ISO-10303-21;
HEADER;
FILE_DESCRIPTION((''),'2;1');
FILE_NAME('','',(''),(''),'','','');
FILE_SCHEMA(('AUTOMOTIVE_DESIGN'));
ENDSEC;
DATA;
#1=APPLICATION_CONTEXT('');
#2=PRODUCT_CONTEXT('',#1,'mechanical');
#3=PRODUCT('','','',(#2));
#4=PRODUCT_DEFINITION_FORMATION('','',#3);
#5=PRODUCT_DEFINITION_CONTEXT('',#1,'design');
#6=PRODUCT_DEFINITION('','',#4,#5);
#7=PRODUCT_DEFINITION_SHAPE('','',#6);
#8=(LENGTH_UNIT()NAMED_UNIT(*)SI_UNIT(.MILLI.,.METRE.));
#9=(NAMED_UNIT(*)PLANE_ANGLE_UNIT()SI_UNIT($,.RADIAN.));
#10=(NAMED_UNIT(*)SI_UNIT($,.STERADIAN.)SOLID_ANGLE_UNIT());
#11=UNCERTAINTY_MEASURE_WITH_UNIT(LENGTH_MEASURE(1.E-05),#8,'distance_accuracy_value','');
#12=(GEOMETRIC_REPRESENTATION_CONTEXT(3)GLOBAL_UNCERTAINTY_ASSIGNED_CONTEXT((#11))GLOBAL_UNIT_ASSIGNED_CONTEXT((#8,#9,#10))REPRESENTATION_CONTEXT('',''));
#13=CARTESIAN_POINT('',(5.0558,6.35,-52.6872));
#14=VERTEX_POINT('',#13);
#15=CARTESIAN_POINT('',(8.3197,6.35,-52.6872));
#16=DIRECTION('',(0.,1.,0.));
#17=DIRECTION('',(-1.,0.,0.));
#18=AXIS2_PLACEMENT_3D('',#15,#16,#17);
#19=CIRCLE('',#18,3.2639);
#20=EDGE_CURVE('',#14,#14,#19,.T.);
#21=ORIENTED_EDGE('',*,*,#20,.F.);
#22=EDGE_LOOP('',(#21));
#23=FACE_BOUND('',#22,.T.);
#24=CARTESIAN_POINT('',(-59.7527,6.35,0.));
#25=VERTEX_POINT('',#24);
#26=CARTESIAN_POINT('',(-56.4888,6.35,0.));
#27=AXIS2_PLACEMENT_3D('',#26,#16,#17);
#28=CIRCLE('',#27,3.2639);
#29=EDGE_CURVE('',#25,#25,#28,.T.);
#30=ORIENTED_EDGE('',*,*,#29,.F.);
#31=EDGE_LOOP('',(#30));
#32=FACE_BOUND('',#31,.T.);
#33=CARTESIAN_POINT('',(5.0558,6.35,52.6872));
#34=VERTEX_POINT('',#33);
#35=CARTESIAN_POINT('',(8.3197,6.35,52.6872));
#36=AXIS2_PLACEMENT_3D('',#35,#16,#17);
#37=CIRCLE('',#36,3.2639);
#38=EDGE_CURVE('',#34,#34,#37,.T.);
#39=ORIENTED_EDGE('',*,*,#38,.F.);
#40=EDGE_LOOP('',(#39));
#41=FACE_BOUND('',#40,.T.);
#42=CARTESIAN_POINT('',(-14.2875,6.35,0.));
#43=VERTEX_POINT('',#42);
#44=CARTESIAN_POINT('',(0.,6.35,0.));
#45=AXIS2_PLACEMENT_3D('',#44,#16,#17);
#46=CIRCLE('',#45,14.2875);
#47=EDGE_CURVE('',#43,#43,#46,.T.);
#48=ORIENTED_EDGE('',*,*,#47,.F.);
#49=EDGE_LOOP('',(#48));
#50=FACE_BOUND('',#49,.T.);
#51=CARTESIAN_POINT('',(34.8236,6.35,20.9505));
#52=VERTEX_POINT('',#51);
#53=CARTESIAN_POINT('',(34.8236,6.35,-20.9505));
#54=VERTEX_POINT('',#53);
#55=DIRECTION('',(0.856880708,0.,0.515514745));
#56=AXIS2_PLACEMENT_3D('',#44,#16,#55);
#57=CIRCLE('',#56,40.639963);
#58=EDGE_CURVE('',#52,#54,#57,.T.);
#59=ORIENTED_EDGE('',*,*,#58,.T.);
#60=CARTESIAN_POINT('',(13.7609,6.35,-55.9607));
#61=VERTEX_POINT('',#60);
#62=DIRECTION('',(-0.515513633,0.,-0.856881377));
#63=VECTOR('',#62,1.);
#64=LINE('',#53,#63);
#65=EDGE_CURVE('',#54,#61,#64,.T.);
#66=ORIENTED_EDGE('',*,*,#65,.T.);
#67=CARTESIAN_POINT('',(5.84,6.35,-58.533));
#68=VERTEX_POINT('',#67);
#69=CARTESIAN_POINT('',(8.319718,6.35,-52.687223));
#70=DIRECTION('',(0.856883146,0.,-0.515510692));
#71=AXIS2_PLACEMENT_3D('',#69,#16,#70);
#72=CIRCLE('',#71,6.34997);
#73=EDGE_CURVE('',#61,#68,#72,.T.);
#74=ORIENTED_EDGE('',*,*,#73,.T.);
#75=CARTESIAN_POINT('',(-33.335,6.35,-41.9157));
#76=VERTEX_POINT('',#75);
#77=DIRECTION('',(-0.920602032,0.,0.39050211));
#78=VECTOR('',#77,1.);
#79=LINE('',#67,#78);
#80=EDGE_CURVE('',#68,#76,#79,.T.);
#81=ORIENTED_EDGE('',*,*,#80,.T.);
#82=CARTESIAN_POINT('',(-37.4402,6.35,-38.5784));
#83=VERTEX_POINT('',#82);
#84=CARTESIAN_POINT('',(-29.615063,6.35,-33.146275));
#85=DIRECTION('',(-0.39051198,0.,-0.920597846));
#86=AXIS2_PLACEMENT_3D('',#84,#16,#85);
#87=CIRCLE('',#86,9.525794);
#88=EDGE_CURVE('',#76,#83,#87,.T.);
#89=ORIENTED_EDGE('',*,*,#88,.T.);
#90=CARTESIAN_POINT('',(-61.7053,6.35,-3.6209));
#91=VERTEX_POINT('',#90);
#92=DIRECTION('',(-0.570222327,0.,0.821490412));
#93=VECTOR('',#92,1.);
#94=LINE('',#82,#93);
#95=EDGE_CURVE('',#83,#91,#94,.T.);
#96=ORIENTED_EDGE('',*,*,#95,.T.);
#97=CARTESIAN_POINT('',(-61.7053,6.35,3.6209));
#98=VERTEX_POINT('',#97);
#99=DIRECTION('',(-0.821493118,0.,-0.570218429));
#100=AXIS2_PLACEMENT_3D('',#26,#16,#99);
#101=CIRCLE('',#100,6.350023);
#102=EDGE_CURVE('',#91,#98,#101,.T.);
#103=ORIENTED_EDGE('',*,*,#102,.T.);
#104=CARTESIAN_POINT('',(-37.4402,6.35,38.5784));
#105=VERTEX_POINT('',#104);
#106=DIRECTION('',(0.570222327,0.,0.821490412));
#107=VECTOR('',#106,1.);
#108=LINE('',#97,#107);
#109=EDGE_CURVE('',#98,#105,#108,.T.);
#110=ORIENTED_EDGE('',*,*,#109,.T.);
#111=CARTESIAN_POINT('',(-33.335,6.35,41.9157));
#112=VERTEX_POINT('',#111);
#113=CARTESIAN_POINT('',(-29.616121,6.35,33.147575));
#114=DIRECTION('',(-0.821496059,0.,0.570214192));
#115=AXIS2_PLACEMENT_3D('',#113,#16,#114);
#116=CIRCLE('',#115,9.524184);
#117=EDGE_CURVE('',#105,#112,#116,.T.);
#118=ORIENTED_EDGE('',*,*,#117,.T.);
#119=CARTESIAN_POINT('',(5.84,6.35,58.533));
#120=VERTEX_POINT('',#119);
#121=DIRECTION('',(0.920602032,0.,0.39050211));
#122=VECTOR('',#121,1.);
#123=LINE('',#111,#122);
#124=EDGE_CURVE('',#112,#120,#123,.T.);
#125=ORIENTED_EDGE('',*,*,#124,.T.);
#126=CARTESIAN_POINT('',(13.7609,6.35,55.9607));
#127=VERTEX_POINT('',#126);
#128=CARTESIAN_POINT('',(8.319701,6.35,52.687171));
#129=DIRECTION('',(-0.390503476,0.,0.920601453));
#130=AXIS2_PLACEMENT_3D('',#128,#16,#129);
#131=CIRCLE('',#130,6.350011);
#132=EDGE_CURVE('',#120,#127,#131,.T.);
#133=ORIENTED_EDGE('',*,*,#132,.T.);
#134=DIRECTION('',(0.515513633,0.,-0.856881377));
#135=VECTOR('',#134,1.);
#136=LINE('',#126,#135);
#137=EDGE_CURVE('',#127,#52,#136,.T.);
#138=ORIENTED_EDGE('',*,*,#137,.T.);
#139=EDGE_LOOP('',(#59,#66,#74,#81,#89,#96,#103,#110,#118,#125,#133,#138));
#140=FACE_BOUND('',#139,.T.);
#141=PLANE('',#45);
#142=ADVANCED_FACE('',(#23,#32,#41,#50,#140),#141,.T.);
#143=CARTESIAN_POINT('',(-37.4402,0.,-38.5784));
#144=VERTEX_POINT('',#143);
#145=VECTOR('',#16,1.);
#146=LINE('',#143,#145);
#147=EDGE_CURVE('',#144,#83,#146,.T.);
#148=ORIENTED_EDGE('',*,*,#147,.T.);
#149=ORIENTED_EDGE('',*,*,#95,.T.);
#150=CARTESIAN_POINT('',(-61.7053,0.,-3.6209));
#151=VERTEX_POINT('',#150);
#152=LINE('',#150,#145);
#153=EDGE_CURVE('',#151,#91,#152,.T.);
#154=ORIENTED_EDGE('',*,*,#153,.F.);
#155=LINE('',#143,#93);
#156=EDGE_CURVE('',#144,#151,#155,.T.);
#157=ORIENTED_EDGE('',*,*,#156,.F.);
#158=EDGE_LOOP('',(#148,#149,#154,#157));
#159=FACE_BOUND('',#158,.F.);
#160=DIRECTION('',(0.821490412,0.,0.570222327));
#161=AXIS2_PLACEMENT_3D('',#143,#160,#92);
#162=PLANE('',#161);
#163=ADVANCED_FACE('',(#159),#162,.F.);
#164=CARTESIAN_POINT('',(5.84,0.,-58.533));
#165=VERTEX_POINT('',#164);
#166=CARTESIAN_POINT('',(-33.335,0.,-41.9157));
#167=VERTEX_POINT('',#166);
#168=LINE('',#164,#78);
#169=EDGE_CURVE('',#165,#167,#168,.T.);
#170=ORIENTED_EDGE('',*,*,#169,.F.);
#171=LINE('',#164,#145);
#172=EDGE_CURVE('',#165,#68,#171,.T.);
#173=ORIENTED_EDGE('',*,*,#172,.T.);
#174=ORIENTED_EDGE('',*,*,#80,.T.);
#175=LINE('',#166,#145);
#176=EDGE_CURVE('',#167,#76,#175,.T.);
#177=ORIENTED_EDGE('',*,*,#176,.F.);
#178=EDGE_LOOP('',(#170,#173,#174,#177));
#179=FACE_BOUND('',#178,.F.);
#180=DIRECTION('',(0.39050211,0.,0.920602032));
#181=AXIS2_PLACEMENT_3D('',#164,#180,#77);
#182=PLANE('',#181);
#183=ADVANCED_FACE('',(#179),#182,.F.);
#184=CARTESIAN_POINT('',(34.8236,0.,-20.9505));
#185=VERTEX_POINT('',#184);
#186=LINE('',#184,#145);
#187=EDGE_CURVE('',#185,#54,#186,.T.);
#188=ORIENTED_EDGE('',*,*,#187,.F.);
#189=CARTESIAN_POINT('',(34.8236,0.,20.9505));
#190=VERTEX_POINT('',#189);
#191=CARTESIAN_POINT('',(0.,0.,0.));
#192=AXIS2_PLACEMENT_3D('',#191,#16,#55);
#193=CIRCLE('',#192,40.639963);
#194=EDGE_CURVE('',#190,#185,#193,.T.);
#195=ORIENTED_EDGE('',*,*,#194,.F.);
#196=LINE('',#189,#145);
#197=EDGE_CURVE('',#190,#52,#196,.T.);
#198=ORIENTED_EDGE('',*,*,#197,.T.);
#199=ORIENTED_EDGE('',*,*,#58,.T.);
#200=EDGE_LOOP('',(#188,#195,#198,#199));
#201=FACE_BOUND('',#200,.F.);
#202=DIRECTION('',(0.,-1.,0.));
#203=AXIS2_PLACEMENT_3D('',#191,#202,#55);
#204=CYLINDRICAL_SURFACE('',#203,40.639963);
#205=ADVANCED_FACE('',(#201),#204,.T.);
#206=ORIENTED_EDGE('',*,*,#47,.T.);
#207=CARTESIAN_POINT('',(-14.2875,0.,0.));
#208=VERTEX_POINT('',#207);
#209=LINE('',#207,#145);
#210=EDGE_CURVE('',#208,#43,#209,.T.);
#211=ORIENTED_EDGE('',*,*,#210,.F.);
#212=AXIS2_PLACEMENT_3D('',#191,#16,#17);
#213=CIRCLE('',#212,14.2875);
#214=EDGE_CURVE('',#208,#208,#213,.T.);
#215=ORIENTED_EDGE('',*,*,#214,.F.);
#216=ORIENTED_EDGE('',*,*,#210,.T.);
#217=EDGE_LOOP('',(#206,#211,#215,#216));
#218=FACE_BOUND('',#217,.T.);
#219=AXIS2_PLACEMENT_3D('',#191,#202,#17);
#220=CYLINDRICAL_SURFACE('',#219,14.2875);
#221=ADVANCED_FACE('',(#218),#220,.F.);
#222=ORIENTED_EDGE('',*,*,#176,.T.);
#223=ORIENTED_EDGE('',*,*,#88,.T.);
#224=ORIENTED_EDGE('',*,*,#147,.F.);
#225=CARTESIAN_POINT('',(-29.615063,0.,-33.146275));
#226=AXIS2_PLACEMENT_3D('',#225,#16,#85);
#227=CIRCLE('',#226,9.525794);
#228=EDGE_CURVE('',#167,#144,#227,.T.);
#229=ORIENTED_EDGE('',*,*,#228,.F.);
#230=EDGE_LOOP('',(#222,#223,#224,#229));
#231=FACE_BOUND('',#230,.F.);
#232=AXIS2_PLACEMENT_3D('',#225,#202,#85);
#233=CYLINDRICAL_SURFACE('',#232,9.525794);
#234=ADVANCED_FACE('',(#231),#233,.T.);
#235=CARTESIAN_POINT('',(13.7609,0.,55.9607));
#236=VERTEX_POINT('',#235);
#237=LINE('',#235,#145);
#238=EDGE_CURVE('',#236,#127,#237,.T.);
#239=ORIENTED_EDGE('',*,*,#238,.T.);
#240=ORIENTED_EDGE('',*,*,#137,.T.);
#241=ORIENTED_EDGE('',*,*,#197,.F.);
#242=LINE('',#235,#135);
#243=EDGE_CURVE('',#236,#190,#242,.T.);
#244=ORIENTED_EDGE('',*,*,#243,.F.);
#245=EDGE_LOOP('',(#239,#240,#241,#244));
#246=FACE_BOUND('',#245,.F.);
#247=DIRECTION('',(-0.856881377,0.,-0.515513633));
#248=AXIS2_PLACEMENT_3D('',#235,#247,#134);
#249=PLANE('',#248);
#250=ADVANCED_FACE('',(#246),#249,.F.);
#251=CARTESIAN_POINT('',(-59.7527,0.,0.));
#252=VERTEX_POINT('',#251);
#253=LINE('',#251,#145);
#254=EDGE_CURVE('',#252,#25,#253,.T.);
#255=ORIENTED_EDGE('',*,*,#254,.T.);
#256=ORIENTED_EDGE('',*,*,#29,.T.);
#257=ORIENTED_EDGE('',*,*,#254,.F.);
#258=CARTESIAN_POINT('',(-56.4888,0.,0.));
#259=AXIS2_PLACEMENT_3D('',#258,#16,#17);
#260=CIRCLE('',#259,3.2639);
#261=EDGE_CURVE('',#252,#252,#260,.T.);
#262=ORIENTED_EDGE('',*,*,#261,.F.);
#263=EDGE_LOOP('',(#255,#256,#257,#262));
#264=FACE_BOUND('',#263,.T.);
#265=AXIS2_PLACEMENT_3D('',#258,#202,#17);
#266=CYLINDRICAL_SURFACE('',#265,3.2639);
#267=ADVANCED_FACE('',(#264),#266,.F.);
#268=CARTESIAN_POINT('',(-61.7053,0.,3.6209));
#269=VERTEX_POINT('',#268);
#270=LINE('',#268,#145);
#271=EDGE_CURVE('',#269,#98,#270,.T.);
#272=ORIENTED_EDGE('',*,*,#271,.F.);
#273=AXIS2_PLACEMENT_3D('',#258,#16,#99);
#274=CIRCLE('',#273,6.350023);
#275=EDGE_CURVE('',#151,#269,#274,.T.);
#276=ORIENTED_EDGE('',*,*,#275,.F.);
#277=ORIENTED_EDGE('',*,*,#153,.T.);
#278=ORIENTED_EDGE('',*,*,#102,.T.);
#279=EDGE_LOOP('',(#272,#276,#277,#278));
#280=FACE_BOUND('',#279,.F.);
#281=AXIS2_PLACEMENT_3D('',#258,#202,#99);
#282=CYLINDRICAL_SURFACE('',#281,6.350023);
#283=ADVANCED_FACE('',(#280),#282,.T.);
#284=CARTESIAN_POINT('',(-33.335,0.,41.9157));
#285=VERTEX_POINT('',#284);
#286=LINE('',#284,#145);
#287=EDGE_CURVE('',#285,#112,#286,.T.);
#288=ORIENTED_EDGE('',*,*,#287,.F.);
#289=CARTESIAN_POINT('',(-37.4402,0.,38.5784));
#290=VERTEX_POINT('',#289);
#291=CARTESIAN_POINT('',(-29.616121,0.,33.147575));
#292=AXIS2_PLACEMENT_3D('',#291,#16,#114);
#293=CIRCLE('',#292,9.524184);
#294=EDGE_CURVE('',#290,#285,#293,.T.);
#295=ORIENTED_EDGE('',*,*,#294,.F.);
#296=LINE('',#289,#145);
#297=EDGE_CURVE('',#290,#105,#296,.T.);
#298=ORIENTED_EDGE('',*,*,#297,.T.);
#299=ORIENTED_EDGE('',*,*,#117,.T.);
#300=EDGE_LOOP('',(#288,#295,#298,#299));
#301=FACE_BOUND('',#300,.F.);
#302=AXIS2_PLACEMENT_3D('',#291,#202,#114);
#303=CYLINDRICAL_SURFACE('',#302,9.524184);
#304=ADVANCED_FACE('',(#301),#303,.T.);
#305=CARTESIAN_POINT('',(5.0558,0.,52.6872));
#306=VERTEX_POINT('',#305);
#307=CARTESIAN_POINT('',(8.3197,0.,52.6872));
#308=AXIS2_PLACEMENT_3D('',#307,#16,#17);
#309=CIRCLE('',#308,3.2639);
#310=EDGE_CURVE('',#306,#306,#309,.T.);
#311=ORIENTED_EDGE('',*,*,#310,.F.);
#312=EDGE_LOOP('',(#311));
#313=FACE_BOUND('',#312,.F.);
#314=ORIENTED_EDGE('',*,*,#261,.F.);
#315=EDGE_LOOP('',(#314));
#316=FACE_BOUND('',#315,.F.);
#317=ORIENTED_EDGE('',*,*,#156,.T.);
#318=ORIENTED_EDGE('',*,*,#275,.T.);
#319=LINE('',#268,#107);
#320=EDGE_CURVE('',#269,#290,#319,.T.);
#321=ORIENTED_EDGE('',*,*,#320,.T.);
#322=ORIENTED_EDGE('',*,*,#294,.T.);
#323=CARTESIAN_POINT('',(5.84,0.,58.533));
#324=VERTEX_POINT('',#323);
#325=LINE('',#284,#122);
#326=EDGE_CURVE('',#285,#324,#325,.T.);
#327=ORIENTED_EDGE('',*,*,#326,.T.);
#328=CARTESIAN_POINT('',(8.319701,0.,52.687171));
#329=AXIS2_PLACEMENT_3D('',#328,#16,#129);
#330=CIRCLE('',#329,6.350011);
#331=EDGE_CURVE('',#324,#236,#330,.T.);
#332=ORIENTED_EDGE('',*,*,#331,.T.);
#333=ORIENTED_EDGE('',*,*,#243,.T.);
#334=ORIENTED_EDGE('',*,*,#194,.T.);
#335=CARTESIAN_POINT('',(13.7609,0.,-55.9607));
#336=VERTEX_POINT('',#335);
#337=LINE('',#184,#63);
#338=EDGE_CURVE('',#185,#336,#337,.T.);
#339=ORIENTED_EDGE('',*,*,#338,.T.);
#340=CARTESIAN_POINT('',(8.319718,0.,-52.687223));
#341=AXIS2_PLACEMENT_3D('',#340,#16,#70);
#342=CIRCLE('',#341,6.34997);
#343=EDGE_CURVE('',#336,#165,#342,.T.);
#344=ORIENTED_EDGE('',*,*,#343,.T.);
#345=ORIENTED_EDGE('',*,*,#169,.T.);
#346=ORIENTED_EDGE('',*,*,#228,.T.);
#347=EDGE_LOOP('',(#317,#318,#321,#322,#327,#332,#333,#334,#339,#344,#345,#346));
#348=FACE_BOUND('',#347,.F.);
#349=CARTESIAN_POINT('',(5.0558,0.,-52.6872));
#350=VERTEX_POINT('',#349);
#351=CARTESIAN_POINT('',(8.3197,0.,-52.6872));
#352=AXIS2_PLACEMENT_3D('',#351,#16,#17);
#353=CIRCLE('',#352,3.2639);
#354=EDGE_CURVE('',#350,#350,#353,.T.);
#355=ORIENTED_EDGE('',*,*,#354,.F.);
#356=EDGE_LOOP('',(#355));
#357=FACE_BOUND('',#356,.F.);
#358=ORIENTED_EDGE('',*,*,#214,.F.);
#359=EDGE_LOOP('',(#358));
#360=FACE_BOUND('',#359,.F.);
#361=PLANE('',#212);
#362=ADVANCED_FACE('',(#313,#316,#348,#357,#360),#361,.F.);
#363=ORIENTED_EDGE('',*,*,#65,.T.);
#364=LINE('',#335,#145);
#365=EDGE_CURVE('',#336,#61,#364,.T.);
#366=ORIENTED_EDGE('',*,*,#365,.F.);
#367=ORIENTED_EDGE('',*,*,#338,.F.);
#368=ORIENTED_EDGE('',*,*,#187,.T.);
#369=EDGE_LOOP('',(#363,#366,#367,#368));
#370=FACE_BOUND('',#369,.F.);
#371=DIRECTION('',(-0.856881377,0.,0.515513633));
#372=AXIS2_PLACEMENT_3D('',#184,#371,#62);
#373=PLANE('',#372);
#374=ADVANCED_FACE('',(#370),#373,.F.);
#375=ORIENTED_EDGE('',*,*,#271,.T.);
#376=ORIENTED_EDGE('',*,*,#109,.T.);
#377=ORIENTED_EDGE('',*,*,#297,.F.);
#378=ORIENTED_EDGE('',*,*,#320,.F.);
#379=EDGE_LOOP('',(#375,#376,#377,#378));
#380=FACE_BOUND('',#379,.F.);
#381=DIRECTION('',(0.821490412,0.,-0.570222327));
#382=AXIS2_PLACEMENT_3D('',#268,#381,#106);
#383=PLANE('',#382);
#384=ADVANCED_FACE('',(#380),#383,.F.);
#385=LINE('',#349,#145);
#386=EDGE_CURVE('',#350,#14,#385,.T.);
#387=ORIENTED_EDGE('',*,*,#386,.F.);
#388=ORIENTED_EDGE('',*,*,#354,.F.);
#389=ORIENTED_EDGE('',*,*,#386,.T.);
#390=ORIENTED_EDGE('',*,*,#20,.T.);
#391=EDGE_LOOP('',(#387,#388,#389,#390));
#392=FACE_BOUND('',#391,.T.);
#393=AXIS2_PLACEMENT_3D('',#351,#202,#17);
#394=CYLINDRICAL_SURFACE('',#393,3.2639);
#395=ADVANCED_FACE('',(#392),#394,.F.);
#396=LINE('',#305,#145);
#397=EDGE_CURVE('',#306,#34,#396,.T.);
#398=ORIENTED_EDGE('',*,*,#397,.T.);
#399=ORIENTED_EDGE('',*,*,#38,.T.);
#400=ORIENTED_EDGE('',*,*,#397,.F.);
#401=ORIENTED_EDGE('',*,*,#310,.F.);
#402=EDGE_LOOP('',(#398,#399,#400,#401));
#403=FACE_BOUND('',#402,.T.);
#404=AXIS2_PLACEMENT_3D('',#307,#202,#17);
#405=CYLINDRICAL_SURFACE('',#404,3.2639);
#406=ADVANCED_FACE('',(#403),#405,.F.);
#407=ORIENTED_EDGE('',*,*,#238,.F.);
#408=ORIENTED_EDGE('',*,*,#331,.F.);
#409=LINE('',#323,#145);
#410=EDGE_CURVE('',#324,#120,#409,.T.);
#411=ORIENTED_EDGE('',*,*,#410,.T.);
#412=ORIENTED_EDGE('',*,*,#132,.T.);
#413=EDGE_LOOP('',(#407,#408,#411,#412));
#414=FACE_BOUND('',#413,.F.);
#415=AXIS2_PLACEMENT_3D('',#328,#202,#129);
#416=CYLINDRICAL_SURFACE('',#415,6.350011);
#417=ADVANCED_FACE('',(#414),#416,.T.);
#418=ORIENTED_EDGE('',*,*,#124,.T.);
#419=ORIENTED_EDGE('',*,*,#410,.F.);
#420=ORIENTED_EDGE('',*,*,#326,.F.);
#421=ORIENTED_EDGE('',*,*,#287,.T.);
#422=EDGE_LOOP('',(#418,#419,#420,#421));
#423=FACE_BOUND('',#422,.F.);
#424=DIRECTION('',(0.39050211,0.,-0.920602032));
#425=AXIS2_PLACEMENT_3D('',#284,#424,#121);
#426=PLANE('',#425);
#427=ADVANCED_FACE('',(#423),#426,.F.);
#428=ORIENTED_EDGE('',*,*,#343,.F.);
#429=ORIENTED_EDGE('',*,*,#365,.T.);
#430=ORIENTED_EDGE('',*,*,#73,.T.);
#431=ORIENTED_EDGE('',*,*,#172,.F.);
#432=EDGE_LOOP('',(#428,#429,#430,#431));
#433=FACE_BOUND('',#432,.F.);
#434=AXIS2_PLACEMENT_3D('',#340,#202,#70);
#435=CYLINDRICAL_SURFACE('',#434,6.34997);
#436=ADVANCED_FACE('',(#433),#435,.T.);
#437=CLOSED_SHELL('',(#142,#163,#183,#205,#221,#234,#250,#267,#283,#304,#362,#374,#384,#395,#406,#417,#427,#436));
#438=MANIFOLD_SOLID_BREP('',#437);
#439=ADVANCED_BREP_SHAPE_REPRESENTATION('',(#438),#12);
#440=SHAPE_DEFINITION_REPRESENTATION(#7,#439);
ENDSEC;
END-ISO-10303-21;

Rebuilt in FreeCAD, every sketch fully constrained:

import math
import FreeCAD as App
import Part
import Sketcher
Q = App.Units.Quantity

doc = App.newDocument("Part")
body = doc.addObject("PartDesign::Body", "Body")

# Sketch on XZ plane
sketch1 = body.newObject("Sketcher::SketchObject", "Sketch")
sketch1.AttachmentSupport = (doc.getObject("XZ_Plane"), [""])
sketch1.MapMode = "FlatFace"
sketch1.addGeometry(Part.ArcOfCircle(Part.Circle(App.Vector(-29.6, -33.1, 0), App.Vector(0, 0, 1), 9.5), math.radians(-145), math.radians(-113)), False)
sketch1.addGeometry(Part.LineSegment(App.Vector(-37.4, -38.6, 0), App.Vector(-61.7, -3.6, 0)), False)
sketch1.addGeometry(Part.ArcOfCircle(Part.Circle(App.Vector(-56.5, 0, 0), App.Vector(0, 0, 1), 6.4), math.radians(145), math.radians(215)), False)
sketch1.addGeometry(Part.LineSegment(App.Vector(-61.7, 3.6, 0), App.Vector(-37.4, 38.6, 0)), False)
sketch1.addGeometry(Part.ArcOfCircle(Part.Circle(App.Vector(-29.6, 33.1, 0), App.Vector(0, 0, 1), 9.5), math.radians(113), math.radians(145)), False)
sketch1.addGeometry(Part.LineSegment(App.Vector(-33.3, 41.9, 0), App.Vector(5.8, 58.5, 0)), False)
sketch1.addGeometry(Part.ArcOfCircle(Part.Circle(App.Vector(8.3, 52.7, 0), App.Vector(0, 0, 1), 6.3), math.radians(31), math.radians(113)), False)
sketch1.addGeometry(Part.LineSegment(App.Vector(13.8, 56, 0), App.Vector(34.8, 21, 0)), False)
sketch1.addGeometry(Part.ArcOfCircle(Part.Circle(App.Vector(0, 0, 0), App.Vector(0, 0, 1), 40.6), math.radians(-31), math.radians(31)), False)
sketch1.addGeometry(Part.LineSegment(App.Vector(34.8, -21, 0), App.Vector(13.8, -56, 0)), False)
sketch1.addGeometry(Part.ArcOfCircle(Part.Circle(App.Vector(8.3, -52.7, 0), App.Vector(0, 0, 1), 6.3), math.radians(-113), math.radians(-31)), False)
sketch1.addGeometry(Part.LineSegment(App.Vector(5.8, -58.5, 0), App.Vector(-33.3, -41.9, 0)), False)
sketch1.addGeometry(Part.Circle(App.Vector(8.3, -52.7, 0), App.Vector(0, 0, 1), 3.3), False)
sketch1.addGeometry(Part.Circle(App.Vector(0, 0, 0), App.Vector(0, 0, 1), 14.3), False)
sketch1.addGeometry(Part.Circle(App.Vector(8.3, 52.7, 0), App.Vector(0, 0, 1), 3.3), False)
sketch1.addGeometry(Part.Circle(App.Vector(-56.5, 0, 0), App.Vector(0, 0, 1), 3.3), False)
sketch1.addConstraint(Sketcher.Constraint("Tangent", 0, 1, 1, 1))
sketch1.addConstraint(Sketcher.Constraint("Tangent", 1, 2, 2, 2))
sketch1.addConstraint(Sketcher.Constraint("Tangent", 2, 1, 3, 1))
sketch1.addConstraint(Sketcher.Constraint("Tangent", 3, 2, 4, 2))
sketch1.addConstraint(Sketcher.Constraint("Tangent", 4, 1, 5, 1))
sketch1.addConstraint(Sketcher.Constraint("Tangent", 5, 2, 6, 2))
sketch1.addConstraint(Sketcher.Constraint("Tangent", 6, 1, 7, 1))
sketch1.addConstraint(Sketcher.Constraint("Tangent", 7, 2, 8, 2))
sketch1.addConstraint(Sketcher.Constraint("Tangent", 8, 1, 9, 1))
sketch1.addConstraint(Sketcher.Constraint("Tangent", 9, 2, 10, 2))
sketch1.addConstraint(Sketcher.Constraint("Tangent", 10, 1, 11, 1))
sketch1.addConstraint(Sketcher.Constraint("Tangent", 11, 2, 0, 2))
sketch1.addConstraint(Sketcher.Constraint("Coincident", 8, 3, -1, 1))
sketch1.addConstraint(Sketcher.Constraint("Coincident", 13, 3, -1, 1))
sketch1.addConstraint(Sketcher.Constraint("Coincident", 12, 3, 10, 3))
sketch1.addConstraint(Sketcher.Constraint("Coincident", 14, 3, 6, 3))
sketch1.addConstraint(Sketcher.Constraint("Coincident", 15, 3, 2, 3))
sketch1.addConstraint(Sketcher.Constraint("Equal", 0, 4))
sketch1.addConstraint(Sketcher.Constraint("Equal", 2, 6))
sketch1.addConstraint(Sketcher.Constraint("Equal", 6, 10))
sketch1.addConstraint(Sketcher.Constraint("Equal", 12, 14))
sketch1.addConstraint(Sketcher.Constraint("Equal", 14, 15))
sketch1.addConstraint(Sketcher.Constraint("Symmetric", 0, 3, 4, 3, -1))
sketch1.addConstraint(Sketcher.Constraint("Symmetric", 6, 3, 10, 3, -1))
sketch1.addConstraint(Sketcher.Constraint("PointOnObject", 2, 3, -1))
sketch1.addConstraint(Sketcher.Constraint("Equal", 3, 5))
sketch1.addConstraint(Sketcher.Constraint("Radius", 2, Q("0.25 in")))
sketch1.addConstraint(Sketcher.Constraint("Diameter", 12, Q("0.257 in")))
sketch1.addConstraint(Sketcher.Constraint("Diameter", 13, Q("1.125 in")))
sketch1.addConstraint(Sketcher.Constraint("Radius", 0, Q("0.375 in")))
sketch1.addConstraint(Sketcher.Constraint("Radius", 8, Q("1.6 in")))
sketch1.addConstraint(Sketcher.Constraint("DistanceY", 0, 3, 4, 3, Q("2.61 in")))
sketch1.addConstraint(Sketcher.Constraint("DistanceX", -1, 1, 7, 2, Q("1.371 in")))
sketch1.addConstraint(Sketcher.Constraint("DistanceX", 2, 3, 0, 3, Q("1.058 in")))
sketch1.addConstraint(Sketcher.Constraint("DistanceY", -1, 1, 6, 3, Q("2.0743 in")))
pad1 = body.newObject("PartDesign::Pad", "Pad")
pad1.Profile = sketch1
pad1.Length = Q("0.25 in")
pad1.Reversed = True

doc.recompute()
